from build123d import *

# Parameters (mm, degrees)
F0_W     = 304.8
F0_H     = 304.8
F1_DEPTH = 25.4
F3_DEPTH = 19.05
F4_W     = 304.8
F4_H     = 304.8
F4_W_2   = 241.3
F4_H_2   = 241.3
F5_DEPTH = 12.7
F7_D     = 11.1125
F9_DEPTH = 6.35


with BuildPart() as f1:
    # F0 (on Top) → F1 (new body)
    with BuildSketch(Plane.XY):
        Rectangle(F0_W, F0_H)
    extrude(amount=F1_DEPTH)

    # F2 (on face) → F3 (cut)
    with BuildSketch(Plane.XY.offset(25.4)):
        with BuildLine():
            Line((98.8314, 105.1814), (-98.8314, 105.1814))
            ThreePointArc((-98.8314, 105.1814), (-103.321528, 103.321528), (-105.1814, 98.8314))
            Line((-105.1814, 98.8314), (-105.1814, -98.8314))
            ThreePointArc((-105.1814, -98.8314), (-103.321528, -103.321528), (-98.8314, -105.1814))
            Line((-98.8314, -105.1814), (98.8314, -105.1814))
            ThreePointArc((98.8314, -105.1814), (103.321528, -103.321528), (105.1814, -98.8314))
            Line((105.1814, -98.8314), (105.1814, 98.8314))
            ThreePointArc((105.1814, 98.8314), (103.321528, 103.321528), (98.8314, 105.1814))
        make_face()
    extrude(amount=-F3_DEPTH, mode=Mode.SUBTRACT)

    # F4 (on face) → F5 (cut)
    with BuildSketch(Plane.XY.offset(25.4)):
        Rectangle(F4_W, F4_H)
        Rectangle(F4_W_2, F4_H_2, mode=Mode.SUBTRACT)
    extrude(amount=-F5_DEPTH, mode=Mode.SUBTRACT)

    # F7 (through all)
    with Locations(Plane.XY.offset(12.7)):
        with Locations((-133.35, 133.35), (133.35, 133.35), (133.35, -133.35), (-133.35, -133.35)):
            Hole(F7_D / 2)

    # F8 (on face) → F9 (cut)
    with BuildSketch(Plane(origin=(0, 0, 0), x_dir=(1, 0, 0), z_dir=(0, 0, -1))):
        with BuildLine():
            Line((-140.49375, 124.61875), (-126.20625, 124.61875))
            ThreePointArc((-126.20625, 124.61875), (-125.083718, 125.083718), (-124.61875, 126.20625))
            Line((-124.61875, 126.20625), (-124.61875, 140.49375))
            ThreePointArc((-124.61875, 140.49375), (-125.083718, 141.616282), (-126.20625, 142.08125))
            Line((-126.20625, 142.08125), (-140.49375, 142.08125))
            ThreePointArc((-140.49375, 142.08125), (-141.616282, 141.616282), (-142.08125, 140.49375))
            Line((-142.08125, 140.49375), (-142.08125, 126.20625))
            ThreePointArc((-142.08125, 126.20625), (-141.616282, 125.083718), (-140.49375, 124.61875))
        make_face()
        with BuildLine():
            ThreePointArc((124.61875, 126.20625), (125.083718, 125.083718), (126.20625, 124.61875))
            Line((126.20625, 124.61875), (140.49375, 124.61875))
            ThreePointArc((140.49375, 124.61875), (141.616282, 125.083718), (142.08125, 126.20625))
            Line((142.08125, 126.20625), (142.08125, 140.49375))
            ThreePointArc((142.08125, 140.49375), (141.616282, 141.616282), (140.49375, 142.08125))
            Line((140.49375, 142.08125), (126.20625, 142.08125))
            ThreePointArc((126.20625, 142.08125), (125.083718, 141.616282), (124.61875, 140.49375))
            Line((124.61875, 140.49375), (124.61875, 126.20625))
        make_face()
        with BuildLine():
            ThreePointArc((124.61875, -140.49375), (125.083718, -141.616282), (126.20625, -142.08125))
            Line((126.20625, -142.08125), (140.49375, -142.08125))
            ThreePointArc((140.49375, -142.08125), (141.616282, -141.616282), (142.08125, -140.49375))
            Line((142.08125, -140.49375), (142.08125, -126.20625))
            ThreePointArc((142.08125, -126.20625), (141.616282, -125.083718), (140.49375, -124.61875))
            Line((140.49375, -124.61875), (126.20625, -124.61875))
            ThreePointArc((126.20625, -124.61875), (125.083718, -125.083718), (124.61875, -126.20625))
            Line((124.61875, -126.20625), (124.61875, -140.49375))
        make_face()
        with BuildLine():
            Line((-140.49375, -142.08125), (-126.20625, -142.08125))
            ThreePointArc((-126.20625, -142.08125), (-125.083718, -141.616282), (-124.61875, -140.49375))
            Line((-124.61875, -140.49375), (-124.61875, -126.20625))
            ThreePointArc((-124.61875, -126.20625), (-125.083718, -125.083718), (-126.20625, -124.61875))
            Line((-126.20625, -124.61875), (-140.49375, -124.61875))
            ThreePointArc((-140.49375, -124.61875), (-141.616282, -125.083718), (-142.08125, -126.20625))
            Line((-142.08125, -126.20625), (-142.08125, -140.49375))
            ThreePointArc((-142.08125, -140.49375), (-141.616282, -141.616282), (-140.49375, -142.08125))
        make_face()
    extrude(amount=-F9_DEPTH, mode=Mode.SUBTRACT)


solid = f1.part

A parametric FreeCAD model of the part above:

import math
import FreeCAD as App
import Part
import Sketcher
Q = App.Units.Quantity


def add_polygon(sketch, points):
    """Adds a closed chain of lines whose ends are joined by coincident constraints."""
    first, n = sketch.GeometryCount, len(points)
    for a, b in zip(points, points[1:] + points[:1]):
        sketch.addGeometry(Part.LineSegment(App.Vector(*a, 0), App.Vector(*b, 0)), False)
    for i in range(n):
        sketch.addConstraint(Sketcher.Constraint("Coincident", first + i, 2, first + (i + 1) % n, 1))

doc = App.newDocument("Part")
body = doc.addObject("PartDesign::Body", "Body")

sketch1 = doc.addObject("Sketcher::SketchObject", "Sketch")
body.addObject(sketch1)
sketch1.AttachmentSupport = (doc.XY_Plane, [""])
sketch1.MapMode = "FlatFace"
add_polygon(sketch1, [(-152, 152), (-152, -152), (152, -152), (152, 152)])
sketch1.addConstraint([
    Sketcher.Constraint("Vertical", 0),
    Sketcher.Constraint("Horizontal", 1),
    Sketcher.Constraint("Vertical", 2),
    Sketcher.Constraint("Horizontal", 3),
    Sketcher.Constraint("Symmetric", 0, 2, 2, 2, -1, 1),
    Sketcher.Constraint("Equal", 3, 0),
    Sketcher.Constraint("DistanceX", 1, 1, 1, 2, Q("12 in")),
])
pad1 = doc.addObject("PartDesign::Pad", "Pad")
body.addObject(pad1)
pad1.Profile = sketch1
pad1.Length = Q("1 in")

sketch2 = doc.addObject("Sketcher::SketchObject", "Sketch001")
body.addObject(sketch2)
sketch2.AttachmentSupport = (doc.XY_Plane, [""])
sketch2.MapMode = "FlatFace"
sketch2.AttachmentOffset = App.Placement(App.Vector(0, 0, 1 * 25.4), App.Rotation())
sketch2.addGeometry([
    Part.LineSegment(App.Vector(99, 105, 0), App.Vector(-99, 105, 0)),
    Part.ArcOfCircle(Part.Circle(App.Vector(-99, 99, 0), App.Vector(0, 0, 1), 6), math.radians(90), math.radians(180)),
    Part.LineSegment(App.Vector(-105, 99, 0), App.Vector(-105, -99, 0)),
    Part.ArcOfCircle(Part.Circle(App.Vector(-99, -99, 0), App.Vector(0, 0, 1), 6), math.radians(-180), math.radians(-90)),
    Part.LineSegment(App.Vector(-99, -105, 0), App.Vector(99, -105, 0)),
    Part.ArcOfCircle(Part.Circle(App.Vector(99, -99, 0), App.Vector(0, 0, 1), 6), math.radians(-90), math.radians(0)),
    Part.LineSegment(App.Vector(105, -99, 0), App.Vector(105, 99, 0)),
    Part.ArcOfCircle(Part.Circle(App.Vector(99, 99, 0), App.Vector(0, 0, 1), 6), math.radians(0), math.radians(90)),
], False)
sketch2.addConstraint([
    Sketcher.Constraint("Tangent", 0, 2, 1, 1),
    Sketcher.Constraint("Tangent", 1, 2, 2, 1),
    Sketcher.Constraint("Tangent", 2, 2, 3, 1),
    Sketcher.Constraint("Tangent", 3, 2, 4, 1),
    Sketcher.Constraint("Tangent", 4, 2, 5, 1),
    Sketcher.Constraint("Tangent", 5, 2, 6, 1),
    Sketcher.Constraint("Tangent", 6, 2, 7, 1),
    Sketcher.Constraint("Tangent", 7, 2, 0, 1),
    Sketcher.Constraint("Horizontal", 0),
    Sketcher.Constraint("Vertical", 2),
    Sketcher.Constraint("Horizontal", 4),
    Sketcher.Constraint("Vertical", 6),
    Sketcher.Constraint("Equal", 1, 3),
    Sketcher.Constraint("Equal", 3, 5),
    Sketcher.Constraint("Equal", 5, 7),
    Sketcher.Constraint("Symmetric", 1, 3, 5, 3, -1, 1),
    Sketcher.Constraint("Equal", 4, 2),
    Sketcher.Constraint("Radius", 1, Q("0.25 in")),
    Sketcher.Constraint("DistanceX", 0, 2, 0, 1, Q("7.782 in")),
])
pocket1 = doc.addObject("PartDesign::Pocket", "Pocket")
body.addObject(pocket1)
pocket1.Profile = sketch2
pocket1.Length = Q("0.75 in")

sketch3 = doc.addObject("Sketcher::SketchObject", "Sketch002")
body.addObject(sketch3)
sketch3.AttachmentSupport = (doc.XY_Plane, [""])
sketch3.MapMode = "FlatFace"
sketch3.AttachmentOffset = App.Placement(App.Vector(0, 0, 1 * 25.4), App.Rotation())
add_polygon(sketch3, [(-152, 152), (-152, -152), (152, -152), (152, 152)])
add_polygon(sketch3, [(121, -121), (-121, -121), (-121, 121), (121, 121)])
sketch3.addConstraint([
    Sketcher.Constraint("Vertical", 0),
    Sketcher.Constraint("Horizontal", 1),
    Sketcher.Constraint("Vertical", 2),
    Sketcher.Constraint("Horizontal", 3),
    Sketcher.Constraint("Horizontal", 4),
    Sketcher.Constraint("Vertical", 5),
    Sketcher.Constraint("Horizontal", 6),
    Sketcher.Constraint("Vertical", 7),
    Sketcher.Constraint("Symmetric", 0, 2, 2, 2, -1, 1),
    Sketcher.Constraint("Symmetric", 4, 2, 6, 2, -1, 1),
    Sketcher.Constraint("Equal", 3, 0),
    Sketcher.Constraint("Equal", 6, 5),
    Sketcher.Constraint("DistanceX", 1, 1, 1, 2, Q("12 in")),
    Sketcher.Constraint("DistanceX", 4, 2, 4, 1, Q("9.5 in")),
])
pocket2 = doc.addObject("PartDesign::Pocket", "Pocket001")
body.addObject(pocket2)
pocket2.Profile = sketch3
pocket2.Length = Q("0.5 in")

sketch4 = doc.addObject("Sketcher::SketchObject", "Sketch003")
body.addObject(sketch4)
sketch4.AttachmentSupport = (doc.XY_Plane, [""])
sketch4.MapMode = "FlatFace"
sketch4.AttachmentOffset = App.Placement(App.Vector(0, 0, 0.5 * 25.4), App.Rotation())
sketch4.addGeometry([
    Part.Circle(App.Vector(-133, 133, 0), App.Vector(0, 0, 1), 6),
    Part.Circle(App.Vector(133, 133, 0), App.Vector(0, 0, 1), 6),
    Part.Circle(App.Vector(133, -133, 0), App.Vector(0, 0, 1), 6),
    Part.Circle(App.Vector(-133, -133, 0), App.Vector(0, 0, 1), 6),
], False)
sketch4.addConstraint([
    Sketcher.Constraint("Equal", 0, 1),
    Sketcher.Constraint("Equal", 1, 2),
    Sketcher.Constraint("Equal", 2, 3),
    Sketcher.Constraint("Symmetric", 0, 3, 2, 3, -1, 1),
    Sketcher.Constraint("Symmetric", 1, 3, 3, 3, -1, 1),
    Sketcher.Constraint("Symmetric", 0, 3, 1, 3, -2),
    Sketcher.Constraint("Diameter", 0, Q("0.4375 in")),
    Sketcher.Constraint("DistanceX", 0, 3, 1, 3, Q("10.5 in")),
    Sketcher.Constraint("DistanceY", 2, 3, 1, 3, Q("10.5 in")),
])
doc.recompute()
hole = doc.addObject("PartDesign::Hole", "Hole")
body.addObject(hole)
hole.Profile = sketch4
hole.ThreadType = "None"
hole.Diameter = Q("0.4375 in")
hole.DepthType = "ThroughAll"

sketch5 = doc.addObject("Sketcher::SketchObject", "Sketch004")
body.addObject(sketch5)
sketch5.AttachmentSupport = (doc.XY_Plane, [""])
sketch5.MapMode = "FlatFace"
sketch5.addGeometry([
    Part.LineSegment(App.Vector(-140.5, -124.6, 0), App.Vector(-126.2, -124.6, 0)),
    Part.ArcOfCircle(Part.Circle(App.Vector(-126.2, -126.2, 0), App.Vector(0, 0, 1), 1.6), math.radians(0), math.radians(90)),
    Part.LineSegment(App.Vector(-124.6, -126.2, 0), App.Vector(-124.6, -140.5, 0)),
    Part.ArcOfCircle(Part.Circle(App.Vector(-126.2, -140.5, 0), App.Vector(0, 0, 1), 1.6), math.radians(-90), math.radians(0)),
    Part.LineSegment(App.Vector(-126.2, -142.1, 0), App.Vector(-140.5, -142.1, 0)),
    Part.ArcOfCircle(Part.Circle(App.Vector(-140.5, -140.5, 0), App.Vector(0, 0, 1), 1.6), math.radians(-180), math.radians(-90)),
    Part.LineSegment(App.Vector(-142.1, -140.5, 0), App.Vector(-142.1, -126.2, 0)),
    Part.ArcOfCircle(Part.Circle(App.Vector(-140.5, -126.2, 0), App.Vector(0, 0, 1), 1.6), math.radians(90), math.radians(180)),
    Part.ArcOfCircle(Part.Circle(App.Vector(126.2, -126.2, 0), App.Vector(0, 0, 1), 1.6), math.radians(90), math.radians(180)),
    Part.LineSegment(App.Vector(126.2, -124.6, 0), App.Vector(140.5, -124.6, 0)),
    Part.ArcOfCircle(Part.Circle(App.Vector(140.5, -126.2, 0), App.Vector(0, 0, 1), 1.6), math.radians(0), math.radians(90)),
    Part.LineSegment(App.Vector(142.1, -126.2, 0), App.Vector(142.1, -140.5, 0)),
    Part.ArcOfCircle(Part.Circle(App.Vector(140.5, -140.5, 0), App.Vector(0, 0, 1), 1.6), math.radians(-90), math.radians(0)),
    Part.LineSegment(App.Vector(140.5, -142.1, 0), App.Vector(126.2, -142.1, 0)),
    Part.ArcOfCircle(Part.Circle(App.Vector(126.2, -140.5, 0), App.Vector(0, 0, 1), 1.6), math.radians(-180), math.radians(-90)),
    Part.LineSegment(App.Vector(124.6, -140.5, 0), App.Vector(124.6, -126.2, 0)),
    Part.ArcOfCircle(Part.Circle(App.Vector(126.2, 140.5, 0), App.Vector(0, 0, 1), 1.6), math.radians(90), math.radians(180)),
    Part.LineSegment(App.Vector(126.2, 142.1, 0), App.Vector(140.5, 142.1, 0)),
    Part.ArcOfCircle(Part.Circle(App.Vector(140.5, 140.5, 0), App.Vector(0, 0, 1), 1.6), math.radians(0), math.radians(90)),
    Part.LineSegment(App.Vector(142.1, 140.5, 0), App.Vector(142.1, 126.2, 0)),
    Part.ArcOfCircle(Part.Circle(App.Vector(140.5, 126.2, 0), App.Vector(0, 0, 1), 1.6), math.radians(-90), math.radians(0)),
    Part.LineSegment(App.Vector(140.5, 124.6, 0), App.Vector(126.2, 124.6, 0)),
    Part.ArcOfCircle(Part.Circle(App.Vector(126.2, 126.2, 0), App.Vector(0, 0, 1), 1.6), math.radians(-180), math.radians(-90)),
    Part.LineSegment(App.Vector(124.6, 126.2, 0), App.Vector(124.6, 140.5, 0)),
    Part.LineSegment(App.Vector(-140.5, 142.1, 0), App.Vector(-126.2, 142.1, 0)),
    Part.ArcOfCircle(Part.Circle(App.Vector(-126.2, 140.5, 0), App.Vector(0, 0, 1), 1.6), math.radians(0), math.radians(90)),
    Part.LineSegment(App.Vector(-124.6, 140.5, 0), App.Vector(-124.6, 126.2, 0)),
    Part.ArcOfCircle(Part.Circle(App.Vector(-126.2, 126.2, 0), App.Vector(0, 0, 1), 1.6), math.radians(-90), math.radians(0)),
    Part.LineSegment(App.Vector(-126.2, 124.6, 0), App.Vector(-140.5, 124.6, 0)),
    Part.ArcOfCircle(Part.Circle(App.Vector(-140.5, 126.2, 0), App.Vector(0, 0, 1), 1.6), math.radians(-180), math.radians(-90)),
    Part.LineSegment(App.Vector(-142.1, 126.2, 0), App.Vector(-142.1, 140.5, 0)),
    Part.ArcOfCircle(Part.Circle(App.Vector(-140.5, 140.5, 0), App.Vector(0, 0, 1), 1.6), math.radians(90), math.radians(180)),
], False)
sketch5.addConstraint([
    Sketcher.Constraint("Tangent", 0, 2, 1, 2),
    Sketcher.Constraint("Tangent", 1, 1, 2, 1),
    Sketcher.Constraint("Tangent", 2, 2, 3, 2),
    Sketcher.Constraint("Tangent", 3, 1, 4, 1),
    Sketcher.Constraint("Tangent", 4, 2, 5, 2),
    Sketcher.Constraint("Tangent", 5, 1, 6, 1),
    Sketcher.Constraint("Tangent", 6, 2, 7, 2),
    Sketcher.Constraint("Tangent", 7, 1, 0, 1),
    Sketcher.Constraint("Tangent", 8, 1, 9, 1),
    Sketcher.Constraint("Tangent", 9, 2, 10, 2),
    Sketcher.Constraint("Tangent", 10, 1, 11, 1),
    Sketcher.Constraint("Tangent", 11, 2, 12, 2),
    Sketcher.Constraint("Tangent", 12, 1, 13, 1),
    Sketcher.Constraint("Tangent", 13, 2, 14, 2),
    Sketcher.Constraint("Tangent", 14, 1, 15, 1),
    Sketcher.Constraint("Tangent", 15, 2, 8, 2),
    Sketcher.Constraint("Tangent", 16, 1, 17, 1),
    Sketcher.Constraint("Tangent", 17, 2, 18, 2),
    Sketcher.Constraint("Tangent", 18, 1, 19, 1),
    Sketcher.Constraint("Tangent", 19, 2, 20, 2),
    Sketcher.Constraint("Tangent", 20, 1, 21, 1),
    Sketcher.Constraint("Tangent", 21, 2, 22, 2),
    Sketcher.Constraint("Tangent", 22, 1, 23, 1),
    Sketcher.Constraint("Tangent", 23, 2, 16, 2),
    Sketcher.Constraint("Tangent", 24, 2, 25, 2),
    Sketcher.Constraint("Tangent", 25, 1, 26, 1),
    Sketcher.Constraint("Tangent", 26, 2, 27, 2),
    Sketcher.Constraint("Tangent", 27, 1, 28, 1),
    Sketcher.Constraint("Tangent", 28, 2, 29, 2),
    Sketcher.Constraint("Tangent", 29, 1, 30, 1),
    Sketcher.Constraint("Tangent", 30, 2, 31, 2),
    Sketcher.Constraint("Tangent", 31, 1, 24, 1),
    Sketcher.Constraint("Horizontal", 0),
    Sketcher.Constraint("Vertical", 2),
    Sketcher.Constraint("Horizontal", 4),
    Sketcher.Constraint("Vertical", 6),
    Sketcher.Constraint("Horizontal", 9),
    Sketcher.Constraint("Vertical", 11),
    Sketcher.Constraint("Horizontal", 13),
    Sketcher.Constraint("Vertical", 15),
    Sketcher.Constraint("Horizontal", 17),
    Sketcher.Constraint("Vertical", 19),
    Sketcher.Constraint("Horizontal", 21),
    Sketcher.Constraint("Vertical", 23),
    Sketcher.Constraint("Horizontal", 24),
    Sketcher.Constraint("Vertical", 26),
    Sketcher.Constraint("Horizontal", 28),
    Sketcher.Constraint("Vertical", 30),
    Sketcher.Constraint("Equal", 1, 3),
    Sketcher.Constraint("Equal", 3, 5),
    Sketcher.Constraint("Equal", 5, 7),
    Sketcher.Constraint("Equal", 7, 8),
    Sketcher.Constraint("Equal", 8, 10),
    Sketcher.Constraint("Equal", 10, 12),
    Sketcher.Constraint("Equal", 12, 14),
    Sketcher.Constraint("Equal", 14, 16),
    Sketcher.Constraint("Equal", 16, 18),
    Sketcher.Constraint("Equal", 18, 20),
    Sketcher.Constraint("Equal", 20, 22),
    Sketcher.Constraint("Equal", 22, 25),
    Sketcher.Constraint("Equal", 25, 27),
    Sketcher.Constraint("Equal", 27, 29),
    Sketcher.Constraint("Equal", 29, 31),
    Sketcher.Constraint("Symmetric", 3, 3, 16, 3, -1, 1),
    Sketcher.Constraint("Symmetric", 7, 3, 20, 3, -1, 1),
    Sketcher.Constraint("Symmetric", 14, 3, 25, 3, -1, 1),
    Sketcher.Constraint("Symmetric", 10, 3, 29, 3, -1, 1),
    Sketcher.Constraint("Symmetric", 1, 3, 8, 3, -2),
    Sketcher.Constraint("Symmetric", 5, 3, 12, 3, -2),
    Sketcher.Constraint("Equal", 28, 2),
    Sketcher.Constraint("Radius", 1, Q("0.0625 in")),
    Sketcher.Constraint("DistanceX", 7, 3, 8, 3, Q("10.5 in")),
    Sketcher.Constraint("DistanceY", 8, 3, 16, 3, Q("10.5 in")),
    Sketcher.Constraint("DistanceX", 0, 1, 0, 2, Q("0.5625 in")),
])
pocket3 = doc.addObject("PartDesign::Pocket", "Pocket002")
body.addObject(pocket3)
pocket3.Profile = sketch5
pocket3.Length = Q("0.25 in")
pocket3.Reversed = True

doc.recompute()
